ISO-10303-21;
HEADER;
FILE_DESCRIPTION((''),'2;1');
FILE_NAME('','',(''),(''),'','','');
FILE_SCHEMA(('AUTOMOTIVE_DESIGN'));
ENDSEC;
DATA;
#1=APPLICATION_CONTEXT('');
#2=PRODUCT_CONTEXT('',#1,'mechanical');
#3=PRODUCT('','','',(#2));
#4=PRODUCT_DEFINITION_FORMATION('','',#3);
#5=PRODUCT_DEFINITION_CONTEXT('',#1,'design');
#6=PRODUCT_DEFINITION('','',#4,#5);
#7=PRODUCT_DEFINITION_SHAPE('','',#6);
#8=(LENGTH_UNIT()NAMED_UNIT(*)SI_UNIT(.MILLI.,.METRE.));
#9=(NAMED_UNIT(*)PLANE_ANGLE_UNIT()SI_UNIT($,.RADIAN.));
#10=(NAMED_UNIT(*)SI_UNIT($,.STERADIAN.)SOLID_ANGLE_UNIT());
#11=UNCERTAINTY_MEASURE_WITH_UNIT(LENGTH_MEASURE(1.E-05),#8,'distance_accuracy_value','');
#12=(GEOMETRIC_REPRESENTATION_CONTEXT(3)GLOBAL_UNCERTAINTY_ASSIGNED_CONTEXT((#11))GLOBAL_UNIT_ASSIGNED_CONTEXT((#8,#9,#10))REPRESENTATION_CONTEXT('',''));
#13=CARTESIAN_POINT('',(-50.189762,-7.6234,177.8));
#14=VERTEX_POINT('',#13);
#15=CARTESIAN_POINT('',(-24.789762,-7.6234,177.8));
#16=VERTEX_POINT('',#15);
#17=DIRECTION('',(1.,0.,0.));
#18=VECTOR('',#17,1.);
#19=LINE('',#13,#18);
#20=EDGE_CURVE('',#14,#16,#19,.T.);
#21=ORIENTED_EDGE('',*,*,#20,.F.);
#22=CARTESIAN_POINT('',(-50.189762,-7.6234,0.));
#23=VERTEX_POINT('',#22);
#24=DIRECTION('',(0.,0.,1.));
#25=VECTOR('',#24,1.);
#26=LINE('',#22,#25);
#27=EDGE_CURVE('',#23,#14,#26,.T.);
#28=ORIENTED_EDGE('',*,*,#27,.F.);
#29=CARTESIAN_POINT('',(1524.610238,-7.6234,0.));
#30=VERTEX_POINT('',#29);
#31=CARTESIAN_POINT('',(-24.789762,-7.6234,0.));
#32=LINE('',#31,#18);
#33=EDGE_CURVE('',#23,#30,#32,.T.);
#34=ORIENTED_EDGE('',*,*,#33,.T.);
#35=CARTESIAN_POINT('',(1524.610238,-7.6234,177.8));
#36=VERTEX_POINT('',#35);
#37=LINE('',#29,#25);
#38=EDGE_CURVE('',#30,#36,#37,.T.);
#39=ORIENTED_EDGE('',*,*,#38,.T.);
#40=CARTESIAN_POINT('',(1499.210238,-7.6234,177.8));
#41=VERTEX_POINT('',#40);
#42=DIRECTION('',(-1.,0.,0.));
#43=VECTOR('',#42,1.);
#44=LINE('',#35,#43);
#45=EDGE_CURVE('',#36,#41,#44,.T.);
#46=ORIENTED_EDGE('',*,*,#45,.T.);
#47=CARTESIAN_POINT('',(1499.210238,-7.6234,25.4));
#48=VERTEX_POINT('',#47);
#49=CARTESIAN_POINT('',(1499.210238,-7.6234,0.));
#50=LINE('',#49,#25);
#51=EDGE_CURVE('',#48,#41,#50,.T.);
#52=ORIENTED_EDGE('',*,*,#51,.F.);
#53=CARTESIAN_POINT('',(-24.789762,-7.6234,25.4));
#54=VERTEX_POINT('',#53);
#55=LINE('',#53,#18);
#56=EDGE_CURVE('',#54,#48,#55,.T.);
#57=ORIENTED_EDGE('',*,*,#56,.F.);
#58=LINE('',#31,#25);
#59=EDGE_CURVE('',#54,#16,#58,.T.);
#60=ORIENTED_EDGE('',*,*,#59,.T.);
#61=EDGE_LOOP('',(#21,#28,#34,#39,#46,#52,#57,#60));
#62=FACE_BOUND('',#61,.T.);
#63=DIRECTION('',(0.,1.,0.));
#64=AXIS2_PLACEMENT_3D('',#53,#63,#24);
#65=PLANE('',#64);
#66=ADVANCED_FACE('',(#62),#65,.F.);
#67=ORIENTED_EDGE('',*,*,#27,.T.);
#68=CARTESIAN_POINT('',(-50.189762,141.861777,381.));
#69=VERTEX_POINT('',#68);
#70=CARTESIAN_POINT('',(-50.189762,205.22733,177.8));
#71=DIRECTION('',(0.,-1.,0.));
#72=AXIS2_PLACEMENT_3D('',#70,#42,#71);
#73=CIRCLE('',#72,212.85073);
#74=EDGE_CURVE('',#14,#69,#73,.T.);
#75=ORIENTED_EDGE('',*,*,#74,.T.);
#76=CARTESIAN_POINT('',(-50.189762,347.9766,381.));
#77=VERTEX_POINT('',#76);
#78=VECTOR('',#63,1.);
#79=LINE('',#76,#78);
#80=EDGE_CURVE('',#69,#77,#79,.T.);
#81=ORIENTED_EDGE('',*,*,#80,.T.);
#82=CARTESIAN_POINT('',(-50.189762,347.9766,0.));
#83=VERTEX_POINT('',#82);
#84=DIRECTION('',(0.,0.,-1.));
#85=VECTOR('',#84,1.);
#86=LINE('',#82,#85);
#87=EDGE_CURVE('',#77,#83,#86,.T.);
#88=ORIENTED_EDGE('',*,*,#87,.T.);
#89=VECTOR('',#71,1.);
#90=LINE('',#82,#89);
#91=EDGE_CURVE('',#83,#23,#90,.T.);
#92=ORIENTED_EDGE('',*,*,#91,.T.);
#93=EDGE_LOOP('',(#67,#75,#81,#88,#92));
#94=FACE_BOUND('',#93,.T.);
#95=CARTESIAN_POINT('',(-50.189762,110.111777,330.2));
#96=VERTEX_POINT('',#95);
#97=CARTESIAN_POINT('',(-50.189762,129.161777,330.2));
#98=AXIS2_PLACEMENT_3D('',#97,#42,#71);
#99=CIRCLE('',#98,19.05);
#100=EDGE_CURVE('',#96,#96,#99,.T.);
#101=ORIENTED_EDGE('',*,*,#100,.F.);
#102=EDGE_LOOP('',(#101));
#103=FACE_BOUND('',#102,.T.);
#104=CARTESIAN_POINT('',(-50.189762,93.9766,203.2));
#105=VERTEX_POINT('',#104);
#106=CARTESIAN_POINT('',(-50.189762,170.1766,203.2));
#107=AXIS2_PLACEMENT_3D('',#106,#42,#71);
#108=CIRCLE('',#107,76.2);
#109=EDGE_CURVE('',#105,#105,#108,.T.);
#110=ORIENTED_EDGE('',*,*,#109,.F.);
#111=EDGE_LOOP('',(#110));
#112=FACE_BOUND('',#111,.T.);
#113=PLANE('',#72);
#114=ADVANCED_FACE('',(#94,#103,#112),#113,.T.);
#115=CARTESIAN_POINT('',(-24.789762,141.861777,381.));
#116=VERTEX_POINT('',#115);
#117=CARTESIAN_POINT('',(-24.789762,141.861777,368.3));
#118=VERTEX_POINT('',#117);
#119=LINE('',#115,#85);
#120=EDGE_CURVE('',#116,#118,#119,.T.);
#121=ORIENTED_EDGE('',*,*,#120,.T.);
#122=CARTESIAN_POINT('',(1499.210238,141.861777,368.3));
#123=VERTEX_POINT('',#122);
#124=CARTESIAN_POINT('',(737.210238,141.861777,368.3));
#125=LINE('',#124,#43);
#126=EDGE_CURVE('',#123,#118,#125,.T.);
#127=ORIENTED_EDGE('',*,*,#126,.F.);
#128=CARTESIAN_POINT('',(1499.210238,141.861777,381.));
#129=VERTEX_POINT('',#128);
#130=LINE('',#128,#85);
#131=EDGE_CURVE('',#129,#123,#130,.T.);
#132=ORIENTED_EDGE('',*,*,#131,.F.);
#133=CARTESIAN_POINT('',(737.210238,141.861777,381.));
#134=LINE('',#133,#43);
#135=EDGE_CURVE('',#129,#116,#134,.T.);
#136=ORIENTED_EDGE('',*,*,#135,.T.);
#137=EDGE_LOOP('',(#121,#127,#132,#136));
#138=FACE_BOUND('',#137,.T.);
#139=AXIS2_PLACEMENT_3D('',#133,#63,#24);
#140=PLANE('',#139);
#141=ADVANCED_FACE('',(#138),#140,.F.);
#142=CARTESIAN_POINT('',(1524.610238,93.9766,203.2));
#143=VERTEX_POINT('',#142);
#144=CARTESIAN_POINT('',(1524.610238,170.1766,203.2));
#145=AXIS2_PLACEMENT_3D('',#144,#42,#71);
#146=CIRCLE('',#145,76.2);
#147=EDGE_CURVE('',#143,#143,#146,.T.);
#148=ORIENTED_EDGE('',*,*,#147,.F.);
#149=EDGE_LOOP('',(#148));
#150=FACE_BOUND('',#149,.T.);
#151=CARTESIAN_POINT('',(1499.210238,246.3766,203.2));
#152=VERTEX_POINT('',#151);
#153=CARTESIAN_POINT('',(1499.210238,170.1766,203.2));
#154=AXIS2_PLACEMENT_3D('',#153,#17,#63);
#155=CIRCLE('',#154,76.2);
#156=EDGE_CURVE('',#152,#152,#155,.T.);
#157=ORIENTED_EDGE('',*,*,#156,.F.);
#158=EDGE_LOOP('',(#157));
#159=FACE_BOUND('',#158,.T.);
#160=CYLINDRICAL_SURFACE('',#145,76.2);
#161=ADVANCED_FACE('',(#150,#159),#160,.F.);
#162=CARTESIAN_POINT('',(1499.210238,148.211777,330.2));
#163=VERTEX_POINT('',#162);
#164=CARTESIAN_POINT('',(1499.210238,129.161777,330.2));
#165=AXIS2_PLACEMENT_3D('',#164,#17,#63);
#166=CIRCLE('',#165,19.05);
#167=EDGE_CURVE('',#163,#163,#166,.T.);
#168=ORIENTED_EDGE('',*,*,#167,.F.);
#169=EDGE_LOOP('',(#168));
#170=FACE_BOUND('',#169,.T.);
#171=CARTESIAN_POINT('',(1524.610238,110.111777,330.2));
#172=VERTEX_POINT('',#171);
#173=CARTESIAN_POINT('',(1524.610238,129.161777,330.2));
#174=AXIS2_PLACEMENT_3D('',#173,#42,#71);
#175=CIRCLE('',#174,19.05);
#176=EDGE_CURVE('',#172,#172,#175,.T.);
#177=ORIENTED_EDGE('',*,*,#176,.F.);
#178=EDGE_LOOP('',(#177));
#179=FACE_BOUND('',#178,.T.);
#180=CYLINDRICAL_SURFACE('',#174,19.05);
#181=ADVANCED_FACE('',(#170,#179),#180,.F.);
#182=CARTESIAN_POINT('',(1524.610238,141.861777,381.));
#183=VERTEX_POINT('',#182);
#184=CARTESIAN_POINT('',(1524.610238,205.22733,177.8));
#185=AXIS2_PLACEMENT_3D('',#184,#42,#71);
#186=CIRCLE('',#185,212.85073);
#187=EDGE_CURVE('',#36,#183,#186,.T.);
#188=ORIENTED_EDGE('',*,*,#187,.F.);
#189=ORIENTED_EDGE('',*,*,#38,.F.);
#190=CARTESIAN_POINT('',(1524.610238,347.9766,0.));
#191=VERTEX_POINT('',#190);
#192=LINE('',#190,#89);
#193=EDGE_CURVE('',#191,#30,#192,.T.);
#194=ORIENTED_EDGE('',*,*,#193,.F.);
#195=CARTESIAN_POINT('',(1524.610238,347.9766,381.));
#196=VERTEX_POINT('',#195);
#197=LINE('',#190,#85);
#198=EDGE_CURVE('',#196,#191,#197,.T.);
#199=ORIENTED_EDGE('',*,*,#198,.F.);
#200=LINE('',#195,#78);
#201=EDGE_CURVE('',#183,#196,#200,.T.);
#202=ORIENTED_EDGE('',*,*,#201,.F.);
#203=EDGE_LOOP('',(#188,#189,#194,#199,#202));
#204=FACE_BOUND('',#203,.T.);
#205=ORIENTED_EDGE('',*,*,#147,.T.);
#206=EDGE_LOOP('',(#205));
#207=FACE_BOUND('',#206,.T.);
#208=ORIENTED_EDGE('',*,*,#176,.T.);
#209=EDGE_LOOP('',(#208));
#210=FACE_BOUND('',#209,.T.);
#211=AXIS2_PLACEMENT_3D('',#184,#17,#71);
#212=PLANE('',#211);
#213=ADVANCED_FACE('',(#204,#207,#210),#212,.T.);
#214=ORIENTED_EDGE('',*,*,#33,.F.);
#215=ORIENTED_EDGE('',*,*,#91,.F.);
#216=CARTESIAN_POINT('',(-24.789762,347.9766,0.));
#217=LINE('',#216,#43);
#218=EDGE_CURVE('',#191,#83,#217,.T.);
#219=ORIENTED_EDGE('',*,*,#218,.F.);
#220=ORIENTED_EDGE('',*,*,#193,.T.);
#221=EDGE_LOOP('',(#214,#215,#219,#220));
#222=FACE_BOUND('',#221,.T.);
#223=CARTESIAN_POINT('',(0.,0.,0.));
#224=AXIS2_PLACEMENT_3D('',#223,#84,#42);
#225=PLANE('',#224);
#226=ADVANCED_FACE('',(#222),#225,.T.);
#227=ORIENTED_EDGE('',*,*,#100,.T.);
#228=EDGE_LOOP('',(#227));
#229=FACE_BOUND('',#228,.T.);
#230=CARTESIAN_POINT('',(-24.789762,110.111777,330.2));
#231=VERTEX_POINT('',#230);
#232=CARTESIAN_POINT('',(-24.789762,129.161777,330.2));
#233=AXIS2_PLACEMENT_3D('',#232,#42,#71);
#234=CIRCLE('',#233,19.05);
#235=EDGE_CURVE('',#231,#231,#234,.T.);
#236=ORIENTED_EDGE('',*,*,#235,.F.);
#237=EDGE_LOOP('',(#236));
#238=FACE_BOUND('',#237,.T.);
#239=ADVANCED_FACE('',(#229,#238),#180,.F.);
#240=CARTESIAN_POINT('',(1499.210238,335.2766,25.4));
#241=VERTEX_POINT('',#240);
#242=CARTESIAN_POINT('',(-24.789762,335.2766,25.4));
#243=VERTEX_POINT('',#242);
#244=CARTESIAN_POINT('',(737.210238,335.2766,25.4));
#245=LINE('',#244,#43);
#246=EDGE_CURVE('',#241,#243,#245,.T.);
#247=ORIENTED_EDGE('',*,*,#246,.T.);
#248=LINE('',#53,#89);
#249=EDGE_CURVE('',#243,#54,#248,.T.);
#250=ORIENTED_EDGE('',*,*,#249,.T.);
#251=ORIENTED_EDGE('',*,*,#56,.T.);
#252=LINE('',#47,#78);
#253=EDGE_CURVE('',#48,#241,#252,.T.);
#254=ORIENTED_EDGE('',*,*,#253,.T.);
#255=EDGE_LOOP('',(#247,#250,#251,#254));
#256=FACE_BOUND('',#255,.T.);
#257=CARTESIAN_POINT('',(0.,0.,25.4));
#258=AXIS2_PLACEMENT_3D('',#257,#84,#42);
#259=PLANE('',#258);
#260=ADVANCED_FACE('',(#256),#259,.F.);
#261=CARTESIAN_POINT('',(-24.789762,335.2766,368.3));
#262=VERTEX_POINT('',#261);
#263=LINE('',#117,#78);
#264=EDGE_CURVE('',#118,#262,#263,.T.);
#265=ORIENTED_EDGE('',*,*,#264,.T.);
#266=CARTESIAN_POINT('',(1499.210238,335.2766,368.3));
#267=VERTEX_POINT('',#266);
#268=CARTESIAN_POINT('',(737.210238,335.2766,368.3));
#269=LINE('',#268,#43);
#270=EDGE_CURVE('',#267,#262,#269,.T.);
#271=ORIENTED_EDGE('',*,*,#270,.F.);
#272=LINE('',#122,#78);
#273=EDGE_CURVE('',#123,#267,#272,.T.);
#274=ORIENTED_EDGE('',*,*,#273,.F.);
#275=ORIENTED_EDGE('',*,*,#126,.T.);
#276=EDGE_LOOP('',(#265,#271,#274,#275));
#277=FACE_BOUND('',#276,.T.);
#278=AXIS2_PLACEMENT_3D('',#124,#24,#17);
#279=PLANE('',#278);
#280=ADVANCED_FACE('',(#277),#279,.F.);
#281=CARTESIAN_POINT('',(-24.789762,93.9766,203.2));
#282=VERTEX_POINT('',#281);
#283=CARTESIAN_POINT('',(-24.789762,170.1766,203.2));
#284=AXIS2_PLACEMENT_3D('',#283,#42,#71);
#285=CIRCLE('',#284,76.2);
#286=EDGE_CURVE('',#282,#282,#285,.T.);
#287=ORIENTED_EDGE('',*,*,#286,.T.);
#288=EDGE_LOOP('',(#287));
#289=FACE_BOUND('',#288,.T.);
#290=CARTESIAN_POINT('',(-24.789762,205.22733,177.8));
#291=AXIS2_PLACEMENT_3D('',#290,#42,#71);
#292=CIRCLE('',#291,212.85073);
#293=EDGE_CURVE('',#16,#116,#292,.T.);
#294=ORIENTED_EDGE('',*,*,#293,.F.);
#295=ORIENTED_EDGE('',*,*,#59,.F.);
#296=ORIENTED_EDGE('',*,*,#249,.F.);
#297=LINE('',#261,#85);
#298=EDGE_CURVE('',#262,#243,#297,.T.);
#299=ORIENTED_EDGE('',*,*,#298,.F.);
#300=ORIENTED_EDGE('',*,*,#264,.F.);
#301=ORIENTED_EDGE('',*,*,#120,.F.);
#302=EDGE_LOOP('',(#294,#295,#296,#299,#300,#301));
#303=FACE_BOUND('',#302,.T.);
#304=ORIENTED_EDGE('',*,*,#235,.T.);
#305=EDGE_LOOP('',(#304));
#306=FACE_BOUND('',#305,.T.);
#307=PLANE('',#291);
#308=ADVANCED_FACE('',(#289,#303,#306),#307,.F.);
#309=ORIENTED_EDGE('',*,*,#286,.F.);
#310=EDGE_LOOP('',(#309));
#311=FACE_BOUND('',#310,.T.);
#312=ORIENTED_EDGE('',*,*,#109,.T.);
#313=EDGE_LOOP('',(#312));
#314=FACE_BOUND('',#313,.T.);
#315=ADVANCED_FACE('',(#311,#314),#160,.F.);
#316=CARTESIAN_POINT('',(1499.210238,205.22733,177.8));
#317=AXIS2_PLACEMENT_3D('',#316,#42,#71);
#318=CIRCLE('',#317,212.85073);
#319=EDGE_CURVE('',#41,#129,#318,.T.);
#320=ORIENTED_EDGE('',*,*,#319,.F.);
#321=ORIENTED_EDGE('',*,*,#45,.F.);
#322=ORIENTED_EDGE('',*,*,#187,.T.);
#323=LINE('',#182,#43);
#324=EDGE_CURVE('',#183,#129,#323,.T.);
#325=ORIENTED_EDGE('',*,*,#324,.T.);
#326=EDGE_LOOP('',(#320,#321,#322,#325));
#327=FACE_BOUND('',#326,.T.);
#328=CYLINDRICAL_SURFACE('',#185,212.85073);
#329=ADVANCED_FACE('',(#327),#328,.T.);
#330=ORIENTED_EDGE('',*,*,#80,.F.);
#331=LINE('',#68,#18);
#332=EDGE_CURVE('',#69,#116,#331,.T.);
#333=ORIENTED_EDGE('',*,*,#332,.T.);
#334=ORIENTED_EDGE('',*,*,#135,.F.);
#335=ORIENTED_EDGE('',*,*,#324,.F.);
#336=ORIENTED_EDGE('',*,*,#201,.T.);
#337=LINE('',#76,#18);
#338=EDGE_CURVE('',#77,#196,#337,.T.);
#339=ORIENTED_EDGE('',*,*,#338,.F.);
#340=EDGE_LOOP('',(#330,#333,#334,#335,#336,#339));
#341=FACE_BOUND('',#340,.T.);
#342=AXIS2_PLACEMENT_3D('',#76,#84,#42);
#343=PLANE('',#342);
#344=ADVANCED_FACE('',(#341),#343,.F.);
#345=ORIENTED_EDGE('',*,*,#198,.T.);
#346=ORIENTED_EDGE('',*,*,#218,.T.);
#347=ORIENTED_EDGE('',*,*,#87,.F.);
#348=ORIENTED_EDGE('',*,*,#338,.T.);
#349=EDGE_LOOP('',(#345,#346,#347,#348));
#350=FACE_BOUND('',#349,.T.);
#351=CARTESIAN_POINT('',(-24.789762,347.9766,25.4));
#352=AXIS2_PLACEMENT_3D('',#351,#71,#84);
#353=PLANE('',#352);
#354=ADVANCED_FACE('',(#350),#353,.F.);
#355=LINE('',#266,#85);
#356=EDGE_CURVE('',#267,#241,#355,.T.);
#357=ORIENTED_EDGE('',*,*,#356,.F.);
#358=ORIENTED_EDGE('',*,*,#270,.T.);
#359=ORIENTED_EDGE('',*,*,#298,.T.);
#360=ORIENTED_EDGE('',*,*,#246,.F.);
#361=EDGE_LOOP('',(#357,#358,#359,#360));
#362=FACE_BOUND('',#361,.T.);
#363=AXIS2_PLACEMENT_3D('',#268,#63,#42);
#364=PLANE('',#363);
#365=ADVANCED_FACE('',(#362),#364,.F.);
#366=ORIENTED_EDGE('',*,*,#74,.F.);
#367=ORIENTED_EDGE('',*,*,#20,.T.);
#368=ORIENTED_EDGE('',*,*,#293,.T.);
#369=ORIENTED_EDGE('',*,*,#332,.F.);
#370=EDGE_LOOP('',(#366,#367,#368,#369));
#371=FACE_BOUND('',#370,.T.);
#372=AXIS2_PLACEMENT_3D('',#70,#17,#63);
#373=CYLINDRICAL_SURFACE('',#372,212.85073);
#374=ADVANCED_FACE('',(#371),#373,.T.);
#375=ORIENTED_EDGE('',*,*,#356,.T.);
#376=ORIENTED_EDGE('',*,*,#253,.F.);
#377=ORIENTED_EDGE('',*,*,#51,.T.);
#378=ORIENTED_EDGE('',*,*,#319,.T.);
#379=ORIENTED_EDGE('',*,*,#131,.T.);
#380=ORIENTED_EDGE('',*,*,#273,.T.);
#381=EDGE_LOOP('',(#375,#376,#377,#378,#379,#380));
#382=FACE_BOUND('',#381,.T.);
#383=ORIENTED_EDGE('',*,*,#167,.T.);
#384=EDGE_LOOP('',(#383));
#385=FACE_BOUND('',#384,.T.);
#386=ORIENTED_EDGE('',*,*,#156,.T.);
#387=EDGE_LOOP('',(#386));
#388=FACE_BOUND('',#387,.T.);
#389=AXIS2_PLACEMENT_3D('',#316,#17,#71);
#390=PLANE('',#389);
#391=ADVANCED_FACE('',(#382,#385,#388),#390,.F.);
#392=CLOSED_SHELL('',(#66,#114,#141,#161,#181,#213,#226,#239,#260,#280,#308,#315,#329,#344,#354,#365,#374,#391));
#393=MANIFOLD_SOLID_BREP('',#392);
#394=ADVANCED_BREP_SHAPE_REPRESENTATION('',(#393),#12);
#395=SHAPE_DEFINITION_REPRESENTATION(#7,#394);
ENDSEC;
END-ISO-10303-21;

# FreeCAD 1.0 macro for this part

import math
import FreeCAD as App
import Part
import Sketcher
from FreeCAD import Vector
Q = App.Units.Quantity

doc = App.newDocument("Part")
body = doc.addObject("PartDesign::Body", "Body")

sketch1 = body.newObject("Sketcher::SketchObject", "Sketch")
sketch1.AttachmentSupport = (doc.getObject("XY_Plane"), [""])
sketch1.MapMode = "FlatFace"
sketch1.addGeometry([
    Part.LineSegment(Vector(-24.789762, 347.9766, 0), Vector(-24.789762, -7.6234, 0)),
    Part.LineSegment(Vector(-24.789762, -7.6234, 0), Vector(1499.210238, -7.6234, 0)),
    Part.LineSegment(Vector(1499.210238, -7.6234, 0), Vector(1499.210238, 347.9766, 0)),
    Part.LineSegment(Vector(1499.210238, 347.9766, 0), Vector(-24.789762, 347.9766, 0)),
], False)
sketch1.addConstraint([
    Sketcher.Constraint("Coincident", 0, 2, 1, 1),
    Sketcher.Constraint("Coincident", 1, 2, 2, 1),
    Sketcher.Constraint("Coincident", 2, 2, 3, 1),
    Sketcher.Constraint("Coincident", 3, 2, 0, 1),
    Sketcher.Constraint("Vertical", 0),
    Sketcher.Constraint("Horizontal", 1),
    Sketcher.Constraint("Vertical", 2),
    Sketcher.Constraint("Horizontal", 3),
    Sketcher.Constraint("DistanceX", 1, 1, 1, 2, Q("60 in")),
    Sketcher.Constraint("DistanceY", 0, 2, 0, 1, Q("14 in")),
    Sketcher.Constraint("DistanceY", 0, 2, -1, 1, Q("7.6234 mm")),
    Sketcher.Constraint("DistanceX", 0, 2, -1, 1, Q("24.789762 mm")),
])
pad1 = body.newObject("PartDesign::Pad", "Pad")
pad1.Profile = sketch1
pad1.Length = Q("1 in")

sketch2 = body.newObject("Sketcher::SketchObject", "Sketch001")
sketch2.AttachmentSupport = (doc.getObject("YZ_Plane"), [""])
sketch2.MapMode = "FlatFace"
sketch2.AttachmentOffset = App.Placement(Vector(0, 0, -24.789762), App.Rotation())
sketch2.addGeometry([
    Part.LineSegment(Vector(347.9766, 381, 0), Vector(347.9766, 0, 0)),
    Part.LineSegment(Vector(347.9766, 0, 0), Vector(-7.6234, 0, 0)),
    Part.LineSegment(Vector(-7.6234, 0, 0), Vector(-7.6234, 177.8, 0)),
    Part.ArcOfCircle(Part.Circle(Vector(205.22733, 177.8, 0), Vector(0, 0, 1), 212.85073), math.radians(107.319481), math.radians(180)),
    Part.LineSegment(Vector(141.861777, 381, 0), Vector(347.9766, 381, 0)),
], False)
sketch2.addConstraint([
    Sketcher.Constraint("Coincident", 0, 2, 1, 1),
    Sketcher.Constraint("Coincident", 1, 2, 2, 1),
    Sketcher.Constraint("Tangent", 2, 2, 3, 2),
    Sketcher.Constraint("Coincident", 3, 1, 4, 1),
    Sketcher.Constraint("Coincident", 4, 2, 0, 1),
    Sketcher.Constraint("Vertical", 0),
    Sketcher.Constraint("Horizontal", 1),
    Sketcher.Constraint("Vertical", 2),
    Sketcher.Constraint("Horizontal", 4),
    Sketcher.Constraint("PointOnObject", 0, 2, -1),
    Sketcher.Constraint("DistanceX", 1, 2, 1, 1, Q("14 in")),
    Sketcher.Constraint("DistanceY", 0, 2, 0, 1, Q("15 in")),
    Sketcher.Constraint("DistanceY", 2, 1, 2, 2, Q("7 in")),
    Sketcher.Constraint("Radius", 3, Q("212.85073 mm")),
    Sketcher.Constraint("DistanceX", -1, 1, 0, 2, Q("347.9766 mm")),
])
pad2 = body.newObject("PartDesign::Pad", "Pad001")
pad2.Profile = sketch2
pad2.Length = Q("1 in")
pad2.Reversed = True

sketch3 = body.newObject("Sketcher::SketchObject", "Sketch002")
sketch3.AttachmentSupport = (doc.getObject("YZ_Plane"), [""])
sketch3.MapMode = "FlatFace"
sketch3.AttachmentOffset = App.Placement(Vector(0, 0, -24.789762), App.Rotation())
sketch3.addGeometry([
    Part.LineSegment(Vector(347.9766, 25.4, 0), Vector(347.9766, 381, 0)),
    Part.LineSegment(Vector(347.9766, 381, 0), Vector(141.861777, 381, 0)),
    Part.LineSegment(Vector(141.861777, 381, 0), Vector(141.861777, 368.3, 0)),
    Part.LineSegment(Vector(141.861777, 368.3, 0), Vector(335.2766, 368.3, 0)),
    Part.LineSegment(Vector(335.2766, 368.3, 0), Vector(335.2766, 25.4, 0)),
    Part.LineSegment(Vector(335.2766, 25.4, 0), Vector(347.9766, 25.4, 0)),
], False)
sketch3.addConstraint([
    Sketcher.Constraint("Coincident", 0, 2, 1, 1),
    Sketcher.Constraint("Coincident", 1, 2, 2, 1),
    Sketcher.Constraint("Coincident", 2, 2, 3, 1),
    Sketcher.Constraint("Coincident", 3, 2, 4, 1),
    Sketcher.Constraint("Coincident", 4, 2, 5, 1),
    Sketcher.Constraint("Coincident", 5, 2, 0, 1),
    Sketcher.Constraint("Vertical", 0),
    Sketcher.Constraint("Horizontal", 1),
    Sketcher.Constraint("Vertical", 2),
    Sketcher.Constraint("Horizontal", 3),
    Sketcher.Constraint("Vertical", 4),
    Sketcher.Constraint("Horizontal", 5),
    Sketcher.Constraint("Equal", 5, 2),
    Sketcher.Constraint("DistanceY", 0, 1, 0, 2, Q("14 in")),
    Sketcher.Constraint("DistanceX", 5, 1, 5, 2, Q("0.5 in")),
    Sketcher.Constraint("DistanceY", -1, 1, 0, 2, Q("15 in")),
    Sketcher.Constraint("DistanceX", -1, 1, 0, 2, Q("347.9766 mm")),
    Sketcher.Constraint("DistanceX", 1, 2, 1, 1, Q("206.114823 mm")),
])
pad3 = body.newObject("PartDesign::Pad", "Pad002")
pad3.Profile = sketch3
pad3.Length = Q("30 in")
doc.recompute()

datumplane = body.newObject("PartDesign::Plane", "DatumPlane")
datumplane.AttachmentSupport = (doc.getObject("YZ_Plane"), [""])
datumplane.MapMode = "FlatFace"
datumplane.AttachmentOffset = App.Placement(Vector(0, 0, 737.210238), App.Rotation())
mirrored = body.newObject("PartDesign::Mirrored", "Mirrored")
mirrored.Originals = [pad2, pad3]
mirrored.MirrorPlane = (datumplane, [""])
body.Tip = mirrored

sketch4 = body.newObject("Sketcher::SketchObject", "Sketch003")
sketch4.AttachmentSupport = (doc.getObject("YZ_Plane"), [""])
sketch4.MapMode = "FlatFace"
sketch4.AttachmentOffset = App.Placement(Vector(0, 0, -50.189762), App.Rotation())
sketch4.addGeometry(Part.Circle(Vector(170.1766, 203.2, 0), Vector(0, 0, 1), 76.2), False)
sketch4.addConstraint([
    Sketcher.Constraint("Diameter", 0, Q("6 in")),
    Sketcher.Constraint("DistanceY", -1, 1, 0, 3, Q("8 in")),
    Sketcher.Constraint("DistanceX", -1, 1, 0, 3, Q("170.1766 mm")),
])
pocket1 = body.newObject("PartDesign::Pocket", "Pocket")
pocket1.Profile = sketch4
pocket1.Type = "ThroughAll"
pocket1.Reversed = True

sketch5 = body.newObject("Sketcher::SketchObject", "Sketch004")
sketch5.AttachmentSupport = (doc.getObject("YZ_Plane"), [""])
sketch5.MapMode = "FlatFace"
sketch5.AttachmentOffset = App.Placement(Vector(0, 0, -50.189762), App.Rotation())
sketch5.addGeometry(Part.Circle(Vector(129.161777, 330.2, 0), Vector(0, 0, 1), 19.05), False)
sketch5.addConstraint([
    Sketcher.Constraint("Diameter", 0, Q("1.5 in")),
    Sketcher.Constraint("DistanceY", -1, 1, 0, 3, Q("13 in")),
    Sketcher.Constraint("DistanceX", -1, 1, 0, 3, Q("129.161777 mm")),
])
pocket2 = body.newObject("PartDesign::Pocket", "Pocket001")
pocket2.Profile = sketch5
pocket2.Type = "ThroughAll"
pocket2.Reversed = True

doc.recompute()
